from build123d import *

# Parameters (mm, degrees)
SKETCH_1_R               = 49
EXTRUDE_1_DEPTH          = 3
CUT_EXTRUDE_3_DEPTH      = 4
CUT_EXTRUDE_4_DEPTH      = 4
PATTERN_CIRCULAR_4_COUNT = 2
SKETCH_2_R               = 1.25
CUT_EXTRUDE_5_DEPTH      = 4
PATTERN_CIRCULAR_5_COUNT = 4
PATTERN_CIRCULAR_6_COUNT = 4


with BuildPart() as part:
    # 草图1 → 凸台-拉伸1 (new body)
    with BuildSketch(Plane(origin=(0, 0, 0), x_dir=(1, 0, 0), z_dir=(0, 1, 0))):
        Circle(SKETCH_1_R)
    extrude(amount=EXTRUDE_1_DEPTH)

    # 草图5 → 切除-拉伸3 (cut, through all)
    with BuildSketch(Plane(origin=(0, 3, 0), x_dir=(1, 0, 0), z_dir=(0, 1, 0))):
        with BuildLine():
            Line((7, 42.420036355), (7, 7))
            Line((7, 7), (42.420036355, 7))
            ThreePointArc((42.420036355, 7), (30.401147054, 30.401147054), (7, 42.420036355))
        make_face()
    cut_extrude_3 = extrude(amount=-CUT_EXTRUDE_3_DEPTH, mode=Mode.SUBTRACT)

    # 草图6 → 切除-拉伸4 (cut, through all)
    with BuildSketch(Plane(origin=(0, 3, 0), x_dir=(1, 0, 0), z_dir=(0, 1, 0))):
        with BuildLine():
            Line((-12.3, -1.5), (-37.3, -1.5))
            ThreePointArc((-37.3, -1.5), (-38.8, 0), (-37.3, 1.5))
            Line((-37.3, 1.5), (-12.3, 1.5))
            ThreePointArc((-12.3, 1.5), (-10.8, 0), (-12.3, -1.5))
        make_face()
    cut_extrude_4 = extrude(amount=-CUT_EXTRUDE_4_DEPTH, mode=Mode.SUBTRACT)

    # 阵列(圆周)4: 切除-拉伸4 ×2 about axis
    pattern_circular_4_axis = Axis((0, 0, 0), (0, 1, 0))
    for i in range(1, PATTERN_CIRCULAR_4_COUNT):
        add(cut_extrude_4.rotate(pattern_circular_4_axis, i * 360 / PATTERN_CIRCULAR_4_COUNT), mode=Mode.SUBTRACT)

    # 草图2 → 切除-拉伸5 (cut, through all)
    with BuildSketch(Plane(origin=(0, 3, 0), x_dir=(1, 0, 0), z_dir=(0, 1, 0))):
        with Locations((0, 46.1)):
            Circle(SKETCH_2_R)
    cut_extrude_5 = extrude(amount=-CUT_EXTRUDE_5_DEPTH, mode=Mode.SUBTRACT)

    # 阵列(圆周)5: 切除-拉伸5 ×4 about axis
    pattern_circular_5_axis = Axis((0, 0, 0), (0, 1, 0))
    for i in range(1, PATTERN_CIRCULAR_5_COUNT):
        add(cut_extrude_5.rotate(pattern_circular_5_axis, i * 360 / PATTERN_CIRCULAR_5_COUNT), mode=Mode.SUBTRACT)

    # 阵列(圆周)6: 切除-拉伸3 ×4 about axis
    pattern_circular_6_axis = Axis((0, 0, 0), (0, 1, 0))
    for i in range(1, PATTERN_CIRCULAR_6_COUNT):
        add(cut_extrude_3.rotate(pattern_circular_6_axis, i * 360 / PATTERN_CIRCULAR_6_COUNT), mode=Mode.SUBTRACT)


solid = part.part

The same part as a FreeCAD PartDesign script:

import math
import FreeCAD as App
import Part
import Sketcher
from FreeCAD import Vector

doc = App.newDocument("Part")
body = doc.addObject("PartDesign::Body", "Body")

# Sketch on XZ plane
sketch1 = body.newObject("Sketcher::SketchObject", "Sketch")
sketch1.AttachmentSupport = (doc.getObject("XZ_Plane"), [""])
sketch1.MapMode = "FlatFace"
sketch1.addGeometry(Part.Circle(Vector(0, 0, 0), Vector(0, 0, 1), 49), False)
sketch1.addConstraint(Sketcher.Constraint("Coincident", 0, 3, -1, 1))
sketch1.addConstraint(Sketcher.Constraint("Diameter", 0, 98.0))
pad1 = body.newObject("PartDesign::Pad", "Pad")
pad1.Profile = sketch1
pad1.Length = 3
pad1.Reversed = True

# Sketch on XZ plane
sketch2 = body.newObject("Sketcher::SketchObject", "Sketch001")
sketch2.AttachmentSupport = (doc.getObject("XZ_Plane"), [""])
sketch2.MapMode = "FlatFace"
sketch2.AttachmentOffset = App.Placement(Vector(0, 0, -3), App.Rotation())
sketch2.addGeometry(Part.LineSegment(Vector(7, -42, 0), Vector(7, -7, 0)), False)
sketch2.addGeometry(Part.LineSegment(Vector(7, -7, 0), Vector(42, -7, 0)), False)
sketch2.addGeometry(Part.ArcOfCircle(Part.Circle(Vector(0, 0, 0), Vector(0, 0, 1), 43), math.radians(-81), math.radians(-9)), False)
sketch2.addConstraint(Sketcher.Constraint("Coincident", 0, 2, 1, 1))
sketch2.addConstraint(Sketcher.Constraint("Coincident", 1, 2, 2, 2))
sketch2.addConstraint(Sketcher.Constraint("Coincident", 2, 1, 0, 1))
sketch2.addConstraint(Sketcher.Constraint("Vertical", 0))
sketch2.addConstraint(Sketcher.Constraint("Horizontal", 1))
sketch2.addConstraint(Sketcher.Constraint("Coincident", 2, 3, -1, 1))
sketch2.addConstraint(Sketcher.Constraint("Equal", 1, 0))
sketch2.addConstraint(Sketcher.Constraint("DistanceX", -1, 1, 0, 2, 7.0))
sketch2.addConstraint(Sketcher.Constraint("Radius", 2, 42.993714))
pocket1 = body.newObject("PartDesign::Pocket", "Pocket")
pocket1.Profile = sketch2
pocket1.Type = "ThroughAll"
pocket1.Reversed = True

# Sketch on XZ plane
sketch3 = body.newObject("Sketcher::SketchObject", "Sketch002")
sketch3.AttachmentSupport = (doc.getObject("XZ_Plane"), [""])
sketch3.MapMode = "FlatFace"
sketch3.AttachmentOffset = App.Placement(Vector(0, 0, -3), App.Rotation())
sketch3.addGeometry(Part.LineSegment(Vector(-37.3, 1.5, 0), Vector(-12.3, 1.5, 0)), False)
sketch3.addGeometry(Part.ArcOfCircle(Part.Circle(Vector(-12.3, 0, 0), Vector(0, 0, 1), 1.5), math.radians(-90), math.radians(90)), False)
sketch3.addGeometry(Part.LineSegment(Vector(-12.3, -1.5, 0), Vector(-37.3, -1.5, 0)), False)
sketch3.addGeometry(Part.ArcOfCircle(Part.Circle(Vector(-37.3, 0, 0), Vector(0, 0, 1), 1.5), math.radians(90), math.radians(270)), False)
sketch3.addConstraint(Sketcher.Constraint("Tangent", 0, 2, 1, 2))
sketch3.addConstraint(Sketcher.Constraint("Tangent", 1, 1, 2, 1))
sketch3.addConstraint(Sketcher.Constraint("Tangent", 2, 2, 3, 2))
sketch3.addConstraint(Sketcher.Constraint("Tangent", 3, 1, 0, 1))
sketch3.addConstraint(Sketcher.Constraint("Horizontal", 0))
sketch3.addConstraint(Sketcher.Constraint("Horizontal", 2))
sketch3.addConstraint(Sketcher.Constraint("PointOnObject", 1, 3, -1))
sketch3.addConstraint(Sketcher.Constraint("Radius", 1, 1.5))
sketch3.addConstraint(Sketcher.Constraint("DistanceX", 0, 1, 0, 2, 25.0))
sketch3.addConstraint(Sketcher.Constraint("DistanceX", 1, 3, -1, 1, 12.3))
pocket2 = body.newObject("PartDesign::Pocket", "Pocket001")
pocket2.Profile = sketch3
pocket2.Type = "ThroughAll"
pocket2.Reversed = True
doc.recompute()

polarpattern = body.newObject("PartDesign::PolarPattern", "PolarPattern")
polarpattern.Originals = [pocket2]
polarpattern.Axis = (doc.getObject("Y_Axis"), [""])
polarpattern.Angle = 360
polarpattern.Occurrences = 2
body.Tip = polarpattern

# Sketch on XZ plane
sketch4 = body.newObject("Sketcher::SketchObject", "Sketch003")
sketch4.AttachmentSupport = (doc.getObject("XZ_Plane"), [""])
sketch4.MapMode = "FlatFace"
sketch4.AttachmentOffset = App.Placement(Vector(0, 0, -3), App.Rotation())
sketch4.addGeometry(Part.Circle(Vector(0, -46.1, 0), Vector(0, 0, 1), 1.2), False)
sketch4.addConstraint(Sketcher.Constraint("PointOnObject", 0, 3, -2))
sketch4.addConstraint(Sketcher.Constraint("Diameter", 0, 2.5))
sketch4.addConstraint(Sketcher.Constraint("DistanceY", 0, 3, -1, 1, 46.1))
pocket3 = body.newObject("PartDesign::Pocket", "Pocket002")
pocket3.Profile = sketch4
pocket3.Type = "ThroughAll"
pocket3.Reversed = True
doc.recompute()

polarpattern2 = body.newObject("PartDesign::PolarPattern", "PolarPattern001")
polarpattern2.Originals = [pocket3]
polarpattern2.Axis = (doc.getObject("Y_Axis"), [""])
polarpattern2.Angle = 360
polarpattern2.Occurrences = 4
body.Tip = polarpattern2
doc.recompute()

polarpattern3 = body.newObject("PartDesign::PolarPattern", "PolarPattern002")
polarpattern3.Originals = [pocket1]
polarpattern3.Axis = (doc.getObject("Y_Axis"), [""])
polarpattern3.Angle = 360
polarpattern3.Occurrences = 4
body.Tip = polarpattern3

doc.recompute()
